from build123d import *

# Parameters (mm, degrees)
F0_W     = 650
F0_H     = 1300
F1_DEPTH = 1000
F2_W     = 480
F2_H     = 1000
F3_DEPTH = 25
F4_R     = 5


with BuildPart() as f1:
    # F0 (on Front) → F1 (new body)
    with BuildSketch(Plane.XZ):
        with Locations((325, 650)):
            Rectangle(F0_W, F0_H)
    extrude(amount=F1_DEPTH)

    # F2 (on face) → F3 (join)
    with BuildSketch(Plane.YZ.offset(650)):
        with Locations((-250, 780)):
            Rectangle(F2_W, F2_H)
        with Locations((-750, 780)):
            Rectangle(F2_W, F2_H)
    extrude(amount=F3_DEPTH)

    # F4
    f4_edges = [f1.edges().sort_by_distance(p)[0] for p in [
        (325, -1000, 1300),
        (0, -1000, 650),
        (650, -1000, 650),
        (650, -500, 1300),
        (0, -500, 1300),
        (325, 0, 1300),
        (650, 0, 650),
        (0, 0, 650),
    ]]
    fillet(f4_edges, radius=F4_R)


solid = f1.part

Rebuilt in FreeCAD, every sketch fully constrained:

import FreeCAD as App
import Part
import Sketcher

V = App.Vector
Q = App.Units.Quantity


def edges_at(feature, points):
    """Names of the edges that pass closest to the given points."""
    edges = feature.Shape.Edges
    near = lambda p: min(range(len(edges)), key=lambda i: edges[i].distToShape(Part.Vertex(*p))[0])
    return sorted({f"Edge{near(p) + 1}" for p in points})


def add_polygon(sketch, points):
    """Adds a closed chain of lines whose ends are joined by coincident constraints."""
    first, n = sketch.GeometryCount, len(points)
    for a, b in zip(points, points[1:] + points[:1]):
        sketch.addGeometry(Part.LineSegment(App.Vector(*a, 0), App.Vector(*b, 0)), False)
    for i in range(n):
        sketch.addConstraint(Sketcher.Constraint("Coincident", first + i, 2, first + (i + 1) % n, 1))

doc = App.newDocument("Part")
params = doc.addObject("Spreadsheet::Sheet", "Params")
for row, (alias, value) in enumerate([
    ("sketch1_width", "650 mm"),
    ("sketch1_height", "1300 mm"),
    ("pad1_length", "1000 mm"),
    ("sketch2_width", "480 mm"),
    ("sketch2_height", "1000 mm"),
    ("pad2_length", "25 mm"),
    ("fillet_radius", "5 mm"),
], start=1):
    params.set(f"A{row}", alias)
    params.set(f"B{row}", "=" + value)
    params.setAlias(f"B{row}", alias)

body = doc.addObject("PartDesign::Body", "Body")

# Sketch on XZ plane
sketch1 = body.newObject("Sketcher::SketchObject", "Sketch")
sketch1.AttachmentSupport = (doc.getObject("XZ_Plane"), [""])
sketch1.MapMode = "FlatFace"
add_polygon(sketch1, [(0, 1300), (0, 0), (650, 0), (650, 1300)])  # lines 0-3
sketch1.addConstraint([
    Sketcher.Constraint("Vertical", 0),
    Sketcher.Constraint("Horizontal", 1),
    Sketcher.Constraint("Vertical", 2),
    Sketcher.Constraint("Horizontal", 3),
    Sketcher.Constraint("Coincident", 0, 2, -1, 1),
    Sketcher.Constraint("DistanceX", 1, 1, 1, 2, Q("650 mm")),
    Sketcher.Constraint("DistanceY", 0, 2, 0, 1, Q("1300 mm")),
])
sketch1.setExpression("Constraints[9]", "Params.sketch1_width")
sketch1.setExpression("Constraints[10]", "Params.sketch1_height")
pad1 = body.newObject("PartDesign::Pad", "Pad")
pad1.Profile = sketch1
pad1.setExpression("Length", "Params.pad1_length")

# Sketch on YZ plane
sketch2 = body.newObject("Sketcher::SketchObject", "Sketch001")
sketch2.AttachmentSupport = (doc.getObject("YZ_Plane"), [""])
sketch2.MapMode = "FlatFace"
sketch2.AttachmentOffset = App.Placement(V(0, 0, 650), App.Rotation())
add_polygon(sketch2, [(-490, 1280), (-490, 280), (-10, 280), (-10, 1280)])  # lines 0-3
add_polygon(sketch2, [(-990, 1280), (-990, 280), (-510, 280), (-510, 1280)])  # lines 4-7
sketch2.addConstraint([
    Sketcher.Constraint("Vertical", 0),
    Sketcher.Constraint("Horizontal", 1),
    Sketcher.Constraint("Vertical", 2),
    Sketcher.Constraint("Horizontal", 3),
    Sketcher.Constraint("Vertical", 4),
    Sketcher.Constraint("Horizontal", 5),
    Sketcher.Constraint("Vertical", 6),
    Sketcher.Constraint("Horizontal", 7),
    Sketcher.Constraint("Horizontal", 1, 2, 4, 2),
    Sketcher.Constraint("Horizontal", 3, 2, 6, 2),
    Sketcher.Constraint("Equal", 3, 5),
    Sketcher.Constraint("DistanceX", 1, 1, 1, 2, Q("480 mm")),
    Sketcher.Constraint("DistanceY", 0, 2, 0, 1, Q("1000 mm")),
    Sketcher.Constraint("DistanceX", 0, 2, -1, 1, Q("490 mm")),
    Sketcher.Constraint("DistanceY", -1, 1, 0, 2, Q("280 mm")),
    Sketcher.Constraint("DistanceX", 4, 2, -1, 1, Q("990 mm")),
])
sketch2.setExpression("Constraints[19]", "Params.sketch2_width")
sketch2.setExpression("Constraints[20]", "Params.sketch2_height")
pad2 = body.newObject("PartDesign::Pad", "Pad001")
pad2.Profile = sketch2
pad2.setExpression("Length", "Params.pad2_length")
doc.recompute()

fillet = body.newObject("PartDesign::Fillet", "Fillet")
fillet.Base = (pad2, edges_at(pad2, [
    (325, -1000, 1300),
    (0, -1000, 650),
    (650, -1000, 650),
    (650, -500, 1300),
    (0, -500, 1300),
    (325, 0, 1300),
    (650, 0, 650),
    (0, 0, 650),
]))
fillet.setExpression("Radius", "Params.fillet_radius")

doc.recompute()
